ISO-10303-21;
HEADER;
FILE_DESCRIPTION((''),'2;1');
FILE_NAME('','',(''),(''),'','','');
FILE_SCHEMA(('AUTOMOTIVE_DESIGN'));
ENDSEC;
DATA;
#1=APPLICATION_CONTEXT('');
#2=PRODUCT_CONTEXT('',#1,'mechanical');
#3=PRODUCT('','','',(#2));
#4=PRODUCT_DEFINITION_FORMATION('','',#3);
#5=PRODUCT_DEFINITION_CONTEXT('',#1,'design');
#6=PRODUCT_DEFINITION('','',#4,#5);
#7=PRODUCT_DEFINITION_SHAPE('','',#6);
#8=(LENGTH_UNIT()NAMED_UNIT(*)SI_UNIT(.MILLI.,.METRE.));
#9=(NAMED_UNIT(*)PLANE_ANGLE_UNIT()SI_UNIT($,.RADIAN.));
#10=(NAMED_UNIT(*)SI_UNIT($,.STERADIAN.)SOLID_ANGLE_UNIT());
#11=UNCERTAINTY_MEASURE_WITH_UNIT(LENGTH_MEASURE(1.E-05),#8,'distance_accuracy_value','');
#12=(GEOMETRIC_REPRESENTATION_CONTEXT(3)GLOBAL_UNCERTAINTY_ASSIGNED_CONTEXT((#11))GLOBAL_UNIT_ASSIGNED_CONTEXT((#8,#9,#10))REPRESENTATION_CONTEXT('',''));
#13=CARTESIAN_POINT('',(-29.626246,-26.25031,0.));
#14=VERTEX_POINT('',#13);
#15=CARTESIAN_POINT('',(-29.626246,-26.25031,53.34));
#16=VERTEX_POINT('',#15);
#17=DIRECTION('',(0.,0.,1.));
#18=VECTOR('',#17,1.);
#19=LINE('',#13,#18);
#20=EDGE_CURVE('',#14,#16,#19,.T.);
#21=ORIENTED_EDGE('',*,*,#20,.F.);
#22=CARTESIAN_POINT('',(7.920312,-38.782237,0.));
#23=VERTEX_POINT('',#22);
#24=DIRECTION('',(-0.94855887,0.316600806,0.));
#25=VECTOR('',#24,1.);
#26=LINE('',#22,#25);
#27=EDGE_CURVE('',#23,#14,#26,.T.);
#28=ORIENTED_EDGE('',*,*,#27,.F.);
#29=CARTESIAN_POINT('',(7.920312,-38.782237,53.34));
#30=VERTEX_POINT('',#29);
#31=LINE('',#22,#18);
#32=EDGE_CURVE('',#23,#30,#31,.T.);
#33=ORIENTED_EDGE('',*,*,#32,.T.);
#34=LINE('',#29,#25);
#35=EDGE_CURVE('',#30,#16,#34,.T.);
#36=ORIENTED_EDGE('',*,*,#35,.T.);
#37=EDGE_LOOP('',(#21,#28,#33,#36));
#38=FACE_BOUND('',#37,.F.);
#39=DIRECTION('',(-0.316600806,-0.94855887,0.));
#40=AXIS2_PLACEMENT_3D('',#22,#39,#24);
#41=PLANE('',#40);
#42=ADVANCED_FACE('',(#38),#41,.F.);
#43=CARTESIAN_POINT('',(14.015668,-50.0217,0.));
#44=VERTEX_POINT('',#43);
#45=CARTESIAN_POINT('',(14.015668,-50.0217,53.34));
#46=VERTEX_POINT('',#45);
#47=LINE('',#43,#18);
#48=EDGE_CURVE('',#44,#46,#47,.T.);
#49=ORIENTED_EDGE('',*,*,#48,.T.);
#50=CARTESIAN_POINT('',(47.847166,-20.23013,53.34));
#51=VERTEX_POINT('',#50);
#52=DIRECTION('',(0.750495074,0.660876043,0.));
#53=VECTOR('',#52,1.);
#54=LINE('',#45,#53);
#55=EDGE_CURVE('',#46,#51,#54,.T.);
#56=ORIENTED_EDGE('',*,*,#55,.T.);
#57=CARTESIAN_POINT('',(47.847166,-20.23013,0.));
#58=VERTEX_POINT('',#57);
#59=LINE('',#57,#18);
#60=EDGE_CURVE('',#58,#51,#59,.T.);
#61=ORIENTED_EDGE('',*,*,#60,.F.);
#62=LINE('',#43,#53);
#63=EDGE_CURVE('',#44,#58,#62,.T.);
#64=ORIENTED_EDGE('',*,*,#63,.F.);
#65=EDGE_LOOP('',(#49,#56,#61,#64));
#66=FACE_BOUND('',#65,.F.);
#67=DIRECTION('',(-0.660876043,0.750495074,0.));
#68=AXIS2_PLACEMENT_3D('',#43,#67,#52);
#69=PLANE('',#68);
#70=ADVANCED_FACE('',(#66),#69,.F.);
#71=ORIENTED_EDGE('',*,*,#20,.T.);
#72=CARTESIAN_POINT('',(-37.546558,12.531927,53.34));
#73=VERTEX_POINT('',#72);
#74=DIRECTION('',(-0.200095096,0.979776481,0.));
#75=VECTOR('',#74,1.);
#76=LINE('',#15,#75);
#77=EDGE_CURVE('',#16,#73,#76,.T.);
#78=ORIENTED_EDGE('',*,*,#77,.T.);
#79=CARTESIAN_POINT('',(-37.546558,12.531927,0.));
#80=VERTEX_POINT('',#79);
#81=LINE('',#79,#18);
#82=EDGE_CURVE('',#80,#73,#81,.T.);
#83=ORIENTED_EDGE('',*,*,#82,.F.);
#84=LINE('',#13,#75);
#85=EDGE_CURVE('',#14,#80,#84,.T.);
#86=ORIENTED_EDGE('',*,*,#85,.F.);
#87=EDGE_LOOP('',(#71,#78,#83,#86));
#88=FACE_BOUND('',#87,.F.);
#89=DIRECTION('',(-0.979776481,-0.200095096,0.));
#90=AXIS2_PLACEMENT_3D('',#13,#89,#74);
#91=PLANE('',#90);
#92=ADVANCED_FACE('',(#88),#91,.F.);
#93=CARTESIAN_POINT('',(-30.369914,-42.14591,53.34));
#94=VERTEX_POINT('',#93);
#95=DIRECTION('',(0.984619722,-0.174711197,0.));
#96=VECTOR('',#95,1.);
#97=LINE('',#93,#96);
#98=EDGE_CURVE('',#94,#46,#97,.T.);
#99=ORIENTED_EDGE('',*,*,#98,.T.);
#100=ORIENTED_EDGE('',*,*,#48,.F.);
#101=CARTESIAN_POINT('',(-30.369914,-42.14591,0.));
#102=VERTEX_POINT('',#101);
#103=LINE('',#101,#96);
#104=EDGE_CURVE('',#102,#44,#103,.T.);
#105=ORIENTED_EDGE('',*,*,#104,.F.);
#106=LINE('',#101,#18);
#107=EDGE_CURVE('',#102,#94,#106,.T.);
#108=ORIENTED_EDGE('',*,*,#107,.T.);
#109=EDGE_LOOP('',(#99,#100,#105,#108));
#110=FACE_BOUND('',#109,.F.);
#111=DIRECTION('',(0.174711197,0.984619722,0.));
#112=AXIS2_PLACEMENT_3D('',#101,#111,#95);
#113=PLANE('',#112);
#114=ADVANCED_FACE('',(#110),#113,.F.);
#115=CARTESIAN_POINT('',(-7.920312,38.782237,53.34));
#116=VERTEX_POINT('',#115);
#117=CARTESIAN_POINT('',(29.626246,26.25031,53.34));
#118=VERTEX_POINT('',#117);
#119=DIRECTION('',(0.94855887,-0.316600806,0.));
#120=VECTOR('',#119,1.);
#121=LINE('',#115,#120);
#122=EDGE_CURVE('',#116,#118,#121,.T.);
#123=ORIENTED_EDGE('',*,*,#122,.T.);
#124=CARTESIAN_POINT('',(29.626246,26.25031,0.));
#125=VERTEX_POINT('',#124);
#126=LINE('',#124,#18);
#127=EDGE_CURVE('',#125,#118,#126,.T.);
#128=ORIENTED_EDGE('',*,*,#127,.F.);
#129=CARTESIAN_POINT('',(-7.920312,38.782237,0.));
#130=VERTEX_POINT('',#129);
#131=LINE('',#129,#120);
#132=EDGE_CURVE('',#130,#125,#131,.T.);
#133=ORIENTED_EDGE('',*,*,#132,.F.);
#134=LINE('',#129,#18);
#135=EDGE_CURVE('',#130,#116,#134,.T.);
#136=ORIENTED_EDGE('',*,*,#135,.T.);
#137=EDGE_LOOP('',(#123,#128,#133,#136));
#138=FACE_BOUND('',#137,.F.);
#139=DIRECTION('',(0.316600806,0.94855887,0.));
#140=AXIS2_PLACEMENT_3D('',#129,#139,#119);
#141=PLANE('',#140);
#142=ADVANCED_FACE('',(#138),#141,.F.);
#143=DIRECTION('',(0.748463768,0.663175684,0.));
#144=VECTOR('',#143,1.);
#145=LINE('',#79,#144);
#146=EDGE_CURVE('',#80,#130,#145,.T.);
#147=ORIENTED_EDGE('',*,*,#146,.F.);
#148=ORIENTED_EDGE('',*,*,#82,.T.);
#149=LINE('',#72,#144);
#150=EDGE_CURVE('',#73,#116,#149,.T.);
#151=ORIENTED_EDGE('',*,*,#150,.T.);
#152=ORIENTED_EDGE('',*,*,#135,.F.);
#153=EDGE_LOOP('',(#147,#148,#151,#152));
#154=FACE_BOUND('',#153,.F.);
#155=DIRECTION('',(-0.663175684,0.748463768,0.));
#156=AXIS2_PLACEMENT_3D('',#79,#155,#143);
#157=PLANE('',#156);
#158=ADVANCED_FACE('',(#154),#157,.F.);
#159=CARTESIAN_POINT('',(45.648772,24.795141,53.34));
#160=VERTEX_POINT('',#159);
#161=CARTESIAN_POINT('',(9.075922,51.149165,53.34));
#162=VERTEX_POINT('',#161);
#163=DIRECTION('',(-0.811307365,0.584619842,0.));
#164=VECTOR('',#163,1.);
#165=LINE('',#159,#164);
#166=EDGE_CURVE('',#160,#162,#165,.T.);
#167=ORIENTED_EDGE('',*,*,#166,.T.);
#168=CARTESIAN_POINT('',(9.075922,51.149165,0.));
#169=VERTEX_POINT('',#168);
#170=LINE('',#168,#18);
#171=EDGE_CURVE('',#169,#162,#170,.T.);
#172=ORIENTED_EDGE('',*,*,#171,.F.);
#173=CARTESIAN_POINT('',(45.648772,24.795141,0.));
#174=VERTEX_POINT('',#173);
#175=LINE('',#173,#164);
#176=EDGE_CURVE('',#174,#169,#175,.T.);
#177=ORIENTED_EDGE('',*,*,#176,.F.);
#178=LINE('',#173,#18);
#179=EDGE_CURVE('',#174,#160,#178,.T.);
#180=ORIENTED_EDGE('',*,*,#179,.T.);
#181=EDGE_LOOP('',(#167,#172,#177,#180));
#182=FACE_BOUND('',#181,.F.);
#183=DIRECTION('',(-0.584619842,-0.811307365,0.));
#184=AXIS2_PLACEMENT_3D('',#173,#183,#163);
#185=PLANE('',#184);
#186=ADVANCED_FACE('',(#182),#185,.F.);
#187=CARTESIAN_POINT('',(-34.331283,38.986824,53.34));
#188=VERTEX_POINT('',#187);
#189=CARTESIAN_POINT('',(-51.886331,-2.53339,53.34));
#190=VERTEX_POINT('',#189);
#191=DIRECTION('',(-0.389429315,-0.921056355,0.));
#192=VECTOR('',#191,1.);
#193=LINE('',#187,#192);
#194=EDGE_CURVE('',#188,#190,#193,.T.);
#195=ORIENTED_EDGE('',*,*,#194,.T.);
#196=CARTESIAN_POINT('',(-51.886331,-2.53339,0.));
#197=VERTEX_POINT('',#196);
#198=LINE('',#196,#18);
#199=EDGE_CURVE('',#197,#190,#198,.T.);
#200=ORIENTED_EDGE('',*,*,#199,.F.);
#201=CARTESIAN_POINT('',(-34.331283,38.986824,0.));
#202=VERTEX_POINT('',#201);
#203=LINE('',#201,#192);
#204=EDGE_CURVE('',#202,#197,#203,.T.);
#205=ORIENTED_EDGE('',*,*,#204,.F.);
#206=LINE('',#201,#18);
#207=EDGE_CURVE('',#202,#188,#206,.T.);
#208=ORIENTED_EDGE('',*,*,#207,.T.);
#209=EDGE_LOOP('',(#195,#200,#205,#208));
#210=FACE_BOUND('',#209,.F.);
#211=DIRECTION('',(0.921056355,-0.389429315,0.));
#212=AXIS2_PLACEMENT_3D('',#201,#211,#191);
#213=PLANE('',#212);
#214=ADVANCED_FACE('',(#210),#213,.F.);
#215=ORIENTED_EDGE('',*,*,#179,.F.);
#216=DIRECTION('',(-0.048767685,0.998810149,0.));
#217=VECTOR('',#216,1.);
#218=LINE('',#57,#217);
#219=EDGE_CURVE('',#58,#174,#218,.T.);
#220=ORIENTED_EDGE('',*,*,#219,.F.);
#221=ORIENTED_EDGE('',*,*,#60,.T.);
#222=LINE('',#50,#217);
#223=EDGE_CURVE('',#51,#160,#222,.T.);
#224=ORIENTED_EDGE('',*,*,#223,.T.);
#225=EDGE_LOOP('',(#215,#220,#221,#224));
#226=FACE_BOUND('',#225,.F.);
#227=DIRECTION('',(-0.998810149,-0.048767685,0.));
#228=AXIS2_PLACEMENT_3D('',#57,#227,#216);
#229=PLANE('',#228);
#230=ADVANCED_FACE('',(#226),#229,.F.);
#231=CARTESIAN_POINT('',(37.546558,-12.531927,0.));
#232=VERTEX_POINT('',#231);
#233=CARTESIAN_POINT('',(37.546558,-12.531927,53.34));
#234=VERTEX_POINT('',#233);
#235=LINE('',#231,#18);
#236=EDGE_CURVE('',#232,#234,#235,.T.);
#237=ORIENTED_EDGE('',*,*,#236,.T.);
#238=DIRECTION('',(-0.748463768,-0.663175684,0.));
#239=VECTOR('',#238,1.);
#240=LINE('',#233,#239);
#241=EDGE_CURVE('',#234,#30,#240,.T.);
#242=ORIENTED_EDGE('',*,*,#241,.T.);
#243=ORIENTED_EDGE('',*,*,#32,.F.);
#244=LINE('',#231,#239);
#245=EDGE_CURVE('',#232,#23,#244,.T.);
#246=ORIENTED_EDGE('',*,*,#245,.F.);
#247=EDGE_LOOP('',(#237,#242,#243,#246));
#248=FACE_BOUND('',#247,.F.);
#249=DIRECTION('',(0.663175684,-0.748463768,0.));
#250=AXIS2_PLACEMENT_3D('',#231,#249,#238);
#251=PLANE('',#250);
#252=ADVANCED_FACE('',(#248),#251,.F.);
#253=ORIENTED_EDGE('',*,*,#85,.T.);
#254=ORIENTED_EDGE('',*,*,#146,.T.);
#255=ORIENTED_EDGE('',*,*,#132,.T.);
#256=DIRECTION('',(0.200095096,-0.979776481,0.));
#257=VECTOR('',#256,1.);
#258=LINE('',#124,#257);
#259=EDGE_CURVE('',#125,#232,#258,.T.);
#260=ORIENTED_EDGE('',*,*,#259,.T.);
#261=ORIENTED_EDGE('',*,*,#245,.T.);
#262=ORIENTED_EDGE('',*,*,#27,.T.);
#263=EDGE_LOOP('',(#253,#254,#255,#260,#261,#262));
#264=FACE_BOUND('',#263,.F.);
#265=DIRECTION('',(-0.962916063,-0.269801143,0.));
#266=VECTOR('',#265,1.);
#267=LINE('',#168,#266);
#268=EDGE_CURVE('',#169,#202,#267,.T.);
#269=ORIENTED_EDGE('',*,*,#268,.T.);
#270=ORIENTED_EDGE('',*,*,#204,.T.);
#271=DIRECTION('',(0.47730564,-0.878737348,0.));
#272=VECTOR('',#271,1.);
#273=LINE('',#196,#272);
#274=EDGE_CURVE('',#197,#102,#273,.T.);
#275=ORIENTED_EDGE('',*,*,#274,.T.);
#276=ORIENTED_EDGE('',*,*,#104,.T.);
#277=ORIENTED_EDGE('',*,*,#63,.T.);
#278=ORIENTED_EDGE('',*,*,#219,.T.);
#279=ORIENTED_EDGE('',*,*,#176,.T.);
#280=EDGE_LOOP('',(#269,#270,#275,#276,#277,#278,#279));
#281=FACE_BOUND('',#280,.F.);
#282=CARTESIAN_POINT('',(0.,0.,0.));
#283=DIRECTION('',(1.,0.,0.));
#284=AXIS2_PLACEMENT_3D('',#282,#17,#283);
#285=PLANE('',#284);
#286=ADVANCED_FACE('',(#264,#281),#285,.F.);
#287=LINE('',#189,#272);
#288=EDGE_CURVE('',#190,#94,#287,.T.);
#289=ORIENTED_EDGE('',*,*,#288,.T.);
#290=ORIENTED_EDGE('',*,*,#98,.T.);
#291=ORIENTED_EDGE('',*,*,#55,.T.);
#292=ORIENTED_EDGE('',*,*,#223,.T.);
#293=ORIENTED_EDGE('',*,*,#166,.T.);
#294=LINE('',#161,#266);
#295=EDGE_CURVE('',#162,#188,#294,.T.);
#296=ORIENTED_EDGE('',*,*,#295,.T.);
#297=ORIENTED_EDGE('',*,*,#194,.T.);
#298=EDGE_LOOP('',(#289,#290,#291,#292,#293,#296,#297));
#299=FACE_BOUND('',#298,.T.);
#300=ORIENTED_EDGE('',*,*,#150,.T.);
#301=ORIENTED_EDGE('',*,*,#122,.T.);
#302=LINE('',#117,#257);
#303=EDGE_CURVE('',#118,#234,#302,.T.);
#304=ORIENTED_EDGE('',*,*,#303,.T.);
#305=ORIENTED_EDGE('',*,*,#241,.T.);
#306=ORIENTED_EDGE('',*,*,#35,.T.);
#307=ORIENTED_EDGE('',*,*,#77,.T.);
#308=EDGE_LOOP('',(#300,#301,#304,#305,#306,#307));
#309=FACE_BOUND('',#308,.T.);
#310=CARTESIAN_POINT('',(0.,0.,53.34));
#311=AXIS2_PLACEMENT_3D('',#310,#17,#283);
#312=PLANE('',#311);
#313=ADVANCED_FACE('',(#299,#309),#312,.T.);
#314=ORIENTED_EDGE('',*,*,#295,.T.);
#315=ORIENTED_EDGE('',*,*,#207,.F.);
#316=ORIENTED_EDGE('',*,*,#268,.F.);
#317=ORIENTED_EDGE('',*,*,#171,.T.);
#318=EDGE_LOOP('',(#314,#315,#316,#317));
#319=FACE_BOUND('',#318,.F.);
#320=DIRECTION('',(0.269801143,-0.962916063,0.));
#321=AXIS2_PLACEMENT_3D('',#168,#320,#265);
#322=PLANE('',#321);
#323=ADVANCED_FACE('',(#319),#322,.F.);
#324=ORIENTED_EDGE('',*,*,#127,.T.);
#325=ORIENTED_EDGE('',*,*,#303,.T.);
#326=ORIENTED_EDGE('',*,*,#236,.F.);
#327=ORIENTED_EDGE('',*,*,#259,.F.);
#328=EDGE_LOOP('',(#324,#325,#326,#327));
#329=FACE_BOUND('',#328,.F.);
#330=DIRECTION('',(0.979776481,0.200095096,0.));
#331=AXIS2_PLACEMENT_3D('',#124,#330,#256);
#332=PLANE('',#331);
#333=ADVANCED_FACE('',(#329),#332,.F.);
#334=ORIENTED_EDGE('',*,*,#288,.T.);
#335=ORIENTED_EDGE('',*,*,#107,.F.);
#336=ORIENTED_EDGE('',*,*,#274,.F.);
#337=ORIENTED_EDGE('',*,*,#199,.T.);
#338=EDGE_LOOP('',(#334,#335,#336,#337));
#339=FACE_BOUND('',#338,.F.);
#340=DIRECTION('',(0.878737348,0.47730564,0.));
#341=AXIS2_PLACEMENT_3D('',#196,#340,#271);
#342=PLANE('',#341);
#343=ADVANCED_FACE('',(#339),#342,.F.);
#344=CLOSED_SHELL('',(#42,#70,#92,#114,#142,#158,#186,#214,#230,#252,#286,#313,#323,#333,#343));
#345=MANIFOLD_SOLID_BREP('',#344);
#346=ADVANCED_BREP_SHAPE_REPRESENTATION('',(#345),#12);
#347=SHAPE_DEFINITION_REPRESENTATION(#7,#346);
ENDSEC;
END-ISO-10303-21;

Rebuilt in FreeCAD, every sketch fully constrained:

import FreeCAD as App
import Part
import Sketcher

V = App.Vector


def add_polygon(sketch, points):
    """Adds a closed chain of lines whose ends are joined by coincident constraints."""
    first, n = sketch.GeometryCount, len(points)
    for a, b in zip(points, points[1:] + points[:1]):
        sketch.addGeometry(Part.LineSegment(App.Vector(*a, 0), App.Vector(*b, 0)), False)
    for i in range(n):
        sketch.addConstraint(Sketcher.Constraint("Coincident", first + i, 2, first + (i + 1) % n, 1))

doc = App.newDocument("Part")
params = doc.addObject("Spreadsheet::Sheet", "Params")
for row, (alias, value) in enumerate([
    ("pad1_length", "2.1 in"),
], start=1):
    params.set(f"A{row}", alias)
    params.set(f"B{row}", "=" + value)
    params.setAlias(f"B{row}", alias)

body = doc.addObject("PartDesign::Body", "Body")

sketch1 = doc.addObject("Sketcher::SketchObject", "Sketch")
body.addObject(sketch1)
sketch1.AttachmentSupport = (doc.XY_Plane, [""])
sketch1.MapMode = "FlatFace"
add_polygon(sketch1, [(14, -50), (48, -20), (46, 25), (9, 51), (-34, 39), (-52, -3), (-30, -42)])
add_polygon(sketch1, [(-8, 39), (30, 26), (38, -13), (8, -39), (-30, -26), (-38, 13)])
sketch1.addConstraint([
    Sketcher.Constraint("Symmetric", 7, 2, 10, 2, -1, 1),
    Sketcher.Constraint("Symmetric", 8, 2, 11, 2, -1, 1),
    Sketcher.Constraint("Symmetric", 9, 2, 12, 2, -1, 1),
    Sketcher.Constraint("Equal", 0, 1),
    Sketcher.Constraint("Equal", 1, 2),
    Sketcher.Constraint("Equal", 2, 3),
    Sketcher.Constraint("Equal", 3, 4),
    Sketcher.Constraint("Equal", 4, 5),
    Sketcher.Constraint("Equal", 5, 6),
    Sketcher.Constraint("Equal", 7, 8),
    Sketcher.Constraint("Equal", 8, 9),
    Sketcher.Constraint("DistanceY", 6, 2, -1, 1, 50.0217),
    Sketcher.Constraint("DistanceX", 6, 2, 0, 2, 33.831498),
    Sketcher.Constraint("DistanceX", 4, 2, 6, 2, 65.901999),
    Sketcher.Constraint("DistanceY", 5, 2, 10, 2, 15.8956),
    Sketcher.Constraint("Distance", 1, 45.078908),
    Sketcher.Constraint("Distance", 7, 39.582739),
    Sketcher.Constraint("DistanceY", -1, 1, 1, 2, 24.795141),
    Sketcher.Constraint("DistanceX", 4, 2, -1, 1, 51.886331),
    Sketcher.Constraint("DistanceY", 4, 2, -1, 1, 2.53339),
    Sketcher.Constraint("DistanceX", 2, 2, 1, 2, 36.57285),
    Sketcher.Constraint("DistanceX", 7, 2, 0, 2, 18.22092),
    Sketcher.Constraint("DistanceX", 8, 2, 0, 2, 10.300608),
])
pad1 = doc.addObject("PartDesign::Pad", "Pad")
body.addObject(pad1)
pad1.Profile = sketch1
pad1.setExpression("Length", "Params.pad1_length")

doc.recompute()
